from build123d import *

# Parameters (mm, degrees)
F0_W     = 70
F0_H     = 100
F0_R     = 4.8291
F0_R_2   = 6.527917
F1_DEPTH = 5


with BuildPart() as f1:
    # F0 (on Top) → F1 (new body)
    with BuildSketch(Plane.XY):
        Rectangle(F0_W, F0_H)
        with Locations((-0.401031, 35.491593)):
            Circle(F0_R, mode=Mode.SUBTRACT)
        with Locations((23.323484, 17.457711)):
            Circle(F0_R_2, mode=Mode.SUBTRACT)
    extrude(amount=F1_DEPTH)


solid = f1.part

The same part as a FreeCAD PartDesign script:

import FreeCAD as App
import Part
import Sketcher

V = App.Vector
Q = App.Units.Quantity

doc = App.newDocument("Part")
body = doc.addObject("PartDesign::Body", "Body")

sketch1 = body.newObject("Sketcher::SketchObject", "Sketch")
sketch1.AttachmentSupport = (doc.getObject("XY_Plane"), [""])
sketch1.MapMode = "FlatFace"
sketch1.addGeometry([
    Part.LineSegment(V(-35, 50, 0), V(-35, -50, 0)),
    Part.LineSegment(V(-35, -50, 0), V(35, -50, 0)),
    Part.LineSegment(V(35, -50, 0), V(35, 50, 0)),
    Part.LineSegment(V(35, 50, 0), V(-35, 50, 0)),
    Part.Circle(V(23.323484, 17.457711, 0), V(0, 0, 1), 6.527917),
    Part.Circle(V(-0.401031, 35.491593, 0), V(0, 0, 1), 4.8291),
], False)
sketch1.addConstraint([
    Sketcher.Constraint("Coincident", 0, 2, 1, 1),
    Sketcher.Constraint("Coincident", 1, 2, 2, 1),
    Sketcher.Constraint("Coincident", 2, 2, 3, 1),
    Sketcher.Constraint("Coincident", 3, 2, 0, 1),
    Sketcher.Constraint("Vertical", 0),
    Sketcher.Constraint("Horizontal", 1),
    Sketcher.Constraint("Vertical", 2),
    Sketcher.Constraint("Horizontal", 3),
    Sketcher.Constraint("Symmetric", 0, 2, 2, 2, -1, 1),
    Sketcher.Constraint("DistanceX", 1, 1, 1, 2, Q("70 mm")),
    Sketcher.Constraint("DistanceY", 0, 2, 0, 1, Q("100 mm")),
    Sketcher.Constraint("Diameter", 5, Q("9.6582 mm")),
    Sketcher.Constraint("Diameter", 4, Q("13.055834 mm")),
    Sketcher.Constraint("DistanceY", -1, 1, 4, 3, Q("17.457711 mm")),
    Sketcher.Constraint("DistanceX", 5, 3, -1, 1, Q("0.401031 mm")),
    Sketcher.Constraint("DistanceX", -1, 1, 4, 3, Q("23.323484 mm")),
    Sketcher.Constraint("DistanceY", -1, 1, 5, 3, Q("35.491593 mm")),
])
pad1 = body.newObject("PartDesign::Pad", "Pad")
pad1.Profile = sketch1
pad1.Length = 5

doc.recompute()
